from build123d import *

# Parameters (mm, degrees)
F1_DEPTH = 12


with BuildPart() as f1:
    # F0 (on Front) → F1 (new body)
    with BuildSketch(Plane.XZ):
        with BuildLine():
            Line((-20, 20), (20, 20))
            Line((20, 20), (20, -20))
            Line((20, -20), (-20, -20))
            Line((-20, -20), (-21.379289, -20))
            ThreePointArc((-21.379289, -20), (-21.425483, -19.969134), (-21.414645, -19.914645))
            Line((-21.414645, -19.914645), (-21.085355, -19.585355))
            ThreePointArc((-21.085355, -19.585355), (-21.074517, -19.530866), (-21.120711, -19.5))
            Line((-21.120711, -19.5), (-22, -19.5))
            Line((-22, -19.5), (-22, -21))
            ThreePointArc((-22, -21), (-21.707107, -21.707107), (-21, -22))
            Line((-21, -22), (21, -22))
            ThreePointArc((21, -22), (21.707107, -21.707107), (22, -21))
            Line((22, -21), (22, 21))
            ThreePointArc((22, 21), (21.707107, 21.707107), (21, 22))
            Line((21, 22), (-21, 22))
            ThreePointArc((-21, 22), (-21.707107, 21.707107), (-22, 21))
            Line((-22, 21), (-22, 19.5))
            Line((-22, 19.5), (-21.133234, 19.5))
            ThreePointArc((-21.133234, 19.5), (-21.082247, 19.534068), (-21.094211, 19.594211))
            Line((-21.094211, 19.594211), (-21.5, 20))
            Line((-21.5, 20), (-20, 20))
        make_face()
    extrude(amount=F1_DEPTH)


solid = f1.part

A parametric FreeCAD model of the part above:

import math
import FreeCAD as App
import Part
import Sketcher
Q = App.Units.Quantity

doc = App.newDocument("Part")
body = doc.addObject("PartDesign::Body", "Body")

sketch1 = doc.addObject("Sketcher::SketchObject", "Sketch")
body.addObject(sketch1)
sketch1.AttachmentSupport = (doc.XZ_Plane, [""])
sketch1.MapMode = "FlatFace"
sketch1.addGeometry([
    Part.LineSegment(App.Vector(20, 20, 0), App.Vector(20, -20, 0)),
    Part.LineSegment(App.Vector(20, -20, 0), App.Vector(-21.379289, -20, 0)),
    Part.ArcOfCircle(Part.Circle(App.Vector(-21.379289, -19.95, 0), App.Vector(0, 0, 1), 0.05), math.radians(135.001135), math.radians(269.999783)),
    Part.LineSegment(App.Vector(-21.414645, -19.914645, 0), App.Vector(-21.085355, -19.585355, 0)),
    Part.ArcOfCircle(Part.Circle(App.Vector(-21.120711, -19.55, 0), App.Vector(0, 0, 1), 0.05), math.radians(-44.998865), math.radians(89.999783)),
    Part.LineSegment(App.Vector(-21.120711, -19.5, 0), App.Vector(-22, -19.5, 0)),
    Part.LineSegment(App.Vector(-22, -19.5, 0), App.Vector(-22, -21, 0)),
    Part.ArcOfCircle(Part.Circle(App.Vector(-21.000001, -21.000001, 0), App.Vector(0, 0, 1), 0.999999), math.radians(179.999957), math.radians(270.000043)),
    Part.LineSegment(App.Vector(-21, -22, 0), App.Vector(21, -22, 0)),
    Part.ArcOfCircle(Part.Circle(App.Vector(21.000001, -21.000001, 0), App.Vector(0, 0, 1), 0.999999), math.radians(-90.000043), math.radians(0.000043)),
    Part.LineSegment(App.Vector(22, -21, 0), App.Vector(22, 21, 0)),
    Part.ArcOfCircle(Part.Circle(App.Vector(21.000001, 21.000001, 0), App.Vector(0, 0, 1), 0.999999), math.radians(-0.000043), math.radians(90.000043)),
    Part.LineSegment(App.Vector(21, 22, 0), App.Vector(-21, 22, 0)),
    Part.ArcOfCircle(Part.Circle(App.Vector(-21.000001, 21.000001, 0), App.Vector(0, 0, 1), 0.999999), math.radians(89.999957), math.radians(180.000043)),
    Part.LineSegment(App.Vector(-22, 21, 0), App.Vector(-22, 19.5, 0)),
    Part.LineSegment(App.Vector(-22, 19.5, 0), App.Vector(-21.133234, 19.5, 0)),
    Part.ArcOfCircle(Part.Circle(App.Vector(-21.133233, 19.555187, 0), App.Vector(0, 0, 1), 0.055187), math.radians(-90.00083), math.radians(45.001321)),
    Part.LineSegment(App.Vector(-21.094211, 19.594211, 0), App.Vector(-21.5, 20, 0)),
    Part.LineSegment(App.Vector(-21.5, 20, 0), App.Vector(20, 20, 0)),
], False)
sketch1.addConstraint([
    Sketcher.Constraint("Coincident", 0, 2, 1, 1),
    Sketcher.Constraint("Coincident", 1, 2, 2, 2),
    Sketcher.Constraint("Coincident", 2, 1, 3, 1),
    Sketcher.Constraint("Coincident", 3, 2, 4, 1),
    Sketcher.Constraint("Coincident", 4, 2, 5, 1),
    Sketcher.Constraint("Coincident", 5, 2, 6, 1),
    Sketcher.Constraint("Tangent", 6, 2, 7, 1),
    Sketcher.Constraint("Tangent", 7, 2, 8, 1),
    Sketcher.Constraint("Tangent", 8, 2, 9, 1),
    Sketcher.Constraint("Tangent", 9, 2, 10, 1),
    Sketcher.Constraint("Tangent", 10, 2, 11, 1),
    Sketcher.Constraint("Tangent", 11, 2, 12, 1),
    Sketcher.Constraint("Tangent", 12, 2, 13, 1),
    Sketcher.Constraint("Tangent", 13, 2, 14, 1),
    Sketcher.Constraint("Coincident", 14, 2, 15, 1),
    Sketcher.Constraint("Coincident", 15, 2, 16, 1),
    Sketcher.Constraint("Coincident", 16, 2, 17, 1),
    Sketcher.Constraint("Coincident", 17, 2, 18, 1),
    Sketcher.Constraint("Coincident", 18, 2, 0, 1),
    Sketcher.Constraint("Vertical", 0),
    Sketcher.Constraint("Horizontal", 1),
    Sketcher.Constraint("Horizontal", 5),
    Sketcher.Constraint("Vertical", 6),
    Sketcher.Constraint("Horizontal", 8),
    Sketcher.Constraint("Vertical", 10),
    Sketcher.Constraint("Horizontal", 12),
    Sketcher.Constraint("Vertical", 14),
    Sketcher.Constraint("Horizontal", 15),
    Sketcher.Constraint("Horizontal", 18),
    Sketcher.Constraint("Equal", 2, 4),
    Sketcher.Constraint("Equal", 7, 9),
    Sketcher.Constraint("Equal", 9, 11),
    Sketcher.Constraint("Equal", 11, 13),
    Sketcher.Constraint("Symmetric", 7, 3, 11, 3, -1, 1),
    Sketcher.Constraint("Symmetric", 5, 2, 14, 2, -1),
    Sketcher.Constraint("Perpendicular", 3, 17),
    Sketcher.Constraint("Vertical", 2, 3, 1, 2),
    Sketcher.Constraint("Vertical", 16, 3, 15, 2),
    Sketcher.Constraint("Equal", 12, 10),
    Sketcher.Constraint("Radius", 7, Q("0.999999 mm")),
    Sketcher.Constraint("DistanceX", 8, 1, 8, 2, Q("42 mm")),
    Sketcher.Constraint("DistanceY", 0, 2, 0, 1, Q("40 mm")),
    Sketcher.Constraint("Angle", 3, Q("45 deg")),
    Sketcher.Constraint("Radius", 2, Q("0.05 mm")),
    Sketcher.Constraint("DistanceX", 18, 1, 18, 2, Q("41.5 mm")),
    Sketcher.Constraint("DistanceY", 6, 2, 6, 1, Q("1.5 mm")),
    Sketcher.Constraint("DistanceX", -1, 1, 0, 2, Q("20 mm")),
    Sketcher.Constraint("DistanceY", 0, 2, -1, 1, Q("20 mm")),
    Sketcher.Constraint("Radius", 16, Q("0.055187 mm")),
    Sketcher.Constraint("DistanceX", 1, 2, 1, 1, Q("41.379289 mm")),
    Sketcher.Constraint("DistanceX", 5, 2, 5, 1, Q("0.879289 mm")),
    Sketcher.Constraint("DistanceX", 16, 2, -1, 1, Q("21.094211 mm")),
    Sketcher.Constraint("DistanceX", 2, 1, 16, 3, Q("0.281412 mm")),
    Sketcher.Constraint("DistanceX", 2, 1, 3, 2, Q("0.32929 mm")),
])
pad1 = doc.addObject("PartDesign::Pad", "Pad")
body.addObject(pad1)
pad1.Profile = sketch1
pad1.Length = 12

doc.recompute()
